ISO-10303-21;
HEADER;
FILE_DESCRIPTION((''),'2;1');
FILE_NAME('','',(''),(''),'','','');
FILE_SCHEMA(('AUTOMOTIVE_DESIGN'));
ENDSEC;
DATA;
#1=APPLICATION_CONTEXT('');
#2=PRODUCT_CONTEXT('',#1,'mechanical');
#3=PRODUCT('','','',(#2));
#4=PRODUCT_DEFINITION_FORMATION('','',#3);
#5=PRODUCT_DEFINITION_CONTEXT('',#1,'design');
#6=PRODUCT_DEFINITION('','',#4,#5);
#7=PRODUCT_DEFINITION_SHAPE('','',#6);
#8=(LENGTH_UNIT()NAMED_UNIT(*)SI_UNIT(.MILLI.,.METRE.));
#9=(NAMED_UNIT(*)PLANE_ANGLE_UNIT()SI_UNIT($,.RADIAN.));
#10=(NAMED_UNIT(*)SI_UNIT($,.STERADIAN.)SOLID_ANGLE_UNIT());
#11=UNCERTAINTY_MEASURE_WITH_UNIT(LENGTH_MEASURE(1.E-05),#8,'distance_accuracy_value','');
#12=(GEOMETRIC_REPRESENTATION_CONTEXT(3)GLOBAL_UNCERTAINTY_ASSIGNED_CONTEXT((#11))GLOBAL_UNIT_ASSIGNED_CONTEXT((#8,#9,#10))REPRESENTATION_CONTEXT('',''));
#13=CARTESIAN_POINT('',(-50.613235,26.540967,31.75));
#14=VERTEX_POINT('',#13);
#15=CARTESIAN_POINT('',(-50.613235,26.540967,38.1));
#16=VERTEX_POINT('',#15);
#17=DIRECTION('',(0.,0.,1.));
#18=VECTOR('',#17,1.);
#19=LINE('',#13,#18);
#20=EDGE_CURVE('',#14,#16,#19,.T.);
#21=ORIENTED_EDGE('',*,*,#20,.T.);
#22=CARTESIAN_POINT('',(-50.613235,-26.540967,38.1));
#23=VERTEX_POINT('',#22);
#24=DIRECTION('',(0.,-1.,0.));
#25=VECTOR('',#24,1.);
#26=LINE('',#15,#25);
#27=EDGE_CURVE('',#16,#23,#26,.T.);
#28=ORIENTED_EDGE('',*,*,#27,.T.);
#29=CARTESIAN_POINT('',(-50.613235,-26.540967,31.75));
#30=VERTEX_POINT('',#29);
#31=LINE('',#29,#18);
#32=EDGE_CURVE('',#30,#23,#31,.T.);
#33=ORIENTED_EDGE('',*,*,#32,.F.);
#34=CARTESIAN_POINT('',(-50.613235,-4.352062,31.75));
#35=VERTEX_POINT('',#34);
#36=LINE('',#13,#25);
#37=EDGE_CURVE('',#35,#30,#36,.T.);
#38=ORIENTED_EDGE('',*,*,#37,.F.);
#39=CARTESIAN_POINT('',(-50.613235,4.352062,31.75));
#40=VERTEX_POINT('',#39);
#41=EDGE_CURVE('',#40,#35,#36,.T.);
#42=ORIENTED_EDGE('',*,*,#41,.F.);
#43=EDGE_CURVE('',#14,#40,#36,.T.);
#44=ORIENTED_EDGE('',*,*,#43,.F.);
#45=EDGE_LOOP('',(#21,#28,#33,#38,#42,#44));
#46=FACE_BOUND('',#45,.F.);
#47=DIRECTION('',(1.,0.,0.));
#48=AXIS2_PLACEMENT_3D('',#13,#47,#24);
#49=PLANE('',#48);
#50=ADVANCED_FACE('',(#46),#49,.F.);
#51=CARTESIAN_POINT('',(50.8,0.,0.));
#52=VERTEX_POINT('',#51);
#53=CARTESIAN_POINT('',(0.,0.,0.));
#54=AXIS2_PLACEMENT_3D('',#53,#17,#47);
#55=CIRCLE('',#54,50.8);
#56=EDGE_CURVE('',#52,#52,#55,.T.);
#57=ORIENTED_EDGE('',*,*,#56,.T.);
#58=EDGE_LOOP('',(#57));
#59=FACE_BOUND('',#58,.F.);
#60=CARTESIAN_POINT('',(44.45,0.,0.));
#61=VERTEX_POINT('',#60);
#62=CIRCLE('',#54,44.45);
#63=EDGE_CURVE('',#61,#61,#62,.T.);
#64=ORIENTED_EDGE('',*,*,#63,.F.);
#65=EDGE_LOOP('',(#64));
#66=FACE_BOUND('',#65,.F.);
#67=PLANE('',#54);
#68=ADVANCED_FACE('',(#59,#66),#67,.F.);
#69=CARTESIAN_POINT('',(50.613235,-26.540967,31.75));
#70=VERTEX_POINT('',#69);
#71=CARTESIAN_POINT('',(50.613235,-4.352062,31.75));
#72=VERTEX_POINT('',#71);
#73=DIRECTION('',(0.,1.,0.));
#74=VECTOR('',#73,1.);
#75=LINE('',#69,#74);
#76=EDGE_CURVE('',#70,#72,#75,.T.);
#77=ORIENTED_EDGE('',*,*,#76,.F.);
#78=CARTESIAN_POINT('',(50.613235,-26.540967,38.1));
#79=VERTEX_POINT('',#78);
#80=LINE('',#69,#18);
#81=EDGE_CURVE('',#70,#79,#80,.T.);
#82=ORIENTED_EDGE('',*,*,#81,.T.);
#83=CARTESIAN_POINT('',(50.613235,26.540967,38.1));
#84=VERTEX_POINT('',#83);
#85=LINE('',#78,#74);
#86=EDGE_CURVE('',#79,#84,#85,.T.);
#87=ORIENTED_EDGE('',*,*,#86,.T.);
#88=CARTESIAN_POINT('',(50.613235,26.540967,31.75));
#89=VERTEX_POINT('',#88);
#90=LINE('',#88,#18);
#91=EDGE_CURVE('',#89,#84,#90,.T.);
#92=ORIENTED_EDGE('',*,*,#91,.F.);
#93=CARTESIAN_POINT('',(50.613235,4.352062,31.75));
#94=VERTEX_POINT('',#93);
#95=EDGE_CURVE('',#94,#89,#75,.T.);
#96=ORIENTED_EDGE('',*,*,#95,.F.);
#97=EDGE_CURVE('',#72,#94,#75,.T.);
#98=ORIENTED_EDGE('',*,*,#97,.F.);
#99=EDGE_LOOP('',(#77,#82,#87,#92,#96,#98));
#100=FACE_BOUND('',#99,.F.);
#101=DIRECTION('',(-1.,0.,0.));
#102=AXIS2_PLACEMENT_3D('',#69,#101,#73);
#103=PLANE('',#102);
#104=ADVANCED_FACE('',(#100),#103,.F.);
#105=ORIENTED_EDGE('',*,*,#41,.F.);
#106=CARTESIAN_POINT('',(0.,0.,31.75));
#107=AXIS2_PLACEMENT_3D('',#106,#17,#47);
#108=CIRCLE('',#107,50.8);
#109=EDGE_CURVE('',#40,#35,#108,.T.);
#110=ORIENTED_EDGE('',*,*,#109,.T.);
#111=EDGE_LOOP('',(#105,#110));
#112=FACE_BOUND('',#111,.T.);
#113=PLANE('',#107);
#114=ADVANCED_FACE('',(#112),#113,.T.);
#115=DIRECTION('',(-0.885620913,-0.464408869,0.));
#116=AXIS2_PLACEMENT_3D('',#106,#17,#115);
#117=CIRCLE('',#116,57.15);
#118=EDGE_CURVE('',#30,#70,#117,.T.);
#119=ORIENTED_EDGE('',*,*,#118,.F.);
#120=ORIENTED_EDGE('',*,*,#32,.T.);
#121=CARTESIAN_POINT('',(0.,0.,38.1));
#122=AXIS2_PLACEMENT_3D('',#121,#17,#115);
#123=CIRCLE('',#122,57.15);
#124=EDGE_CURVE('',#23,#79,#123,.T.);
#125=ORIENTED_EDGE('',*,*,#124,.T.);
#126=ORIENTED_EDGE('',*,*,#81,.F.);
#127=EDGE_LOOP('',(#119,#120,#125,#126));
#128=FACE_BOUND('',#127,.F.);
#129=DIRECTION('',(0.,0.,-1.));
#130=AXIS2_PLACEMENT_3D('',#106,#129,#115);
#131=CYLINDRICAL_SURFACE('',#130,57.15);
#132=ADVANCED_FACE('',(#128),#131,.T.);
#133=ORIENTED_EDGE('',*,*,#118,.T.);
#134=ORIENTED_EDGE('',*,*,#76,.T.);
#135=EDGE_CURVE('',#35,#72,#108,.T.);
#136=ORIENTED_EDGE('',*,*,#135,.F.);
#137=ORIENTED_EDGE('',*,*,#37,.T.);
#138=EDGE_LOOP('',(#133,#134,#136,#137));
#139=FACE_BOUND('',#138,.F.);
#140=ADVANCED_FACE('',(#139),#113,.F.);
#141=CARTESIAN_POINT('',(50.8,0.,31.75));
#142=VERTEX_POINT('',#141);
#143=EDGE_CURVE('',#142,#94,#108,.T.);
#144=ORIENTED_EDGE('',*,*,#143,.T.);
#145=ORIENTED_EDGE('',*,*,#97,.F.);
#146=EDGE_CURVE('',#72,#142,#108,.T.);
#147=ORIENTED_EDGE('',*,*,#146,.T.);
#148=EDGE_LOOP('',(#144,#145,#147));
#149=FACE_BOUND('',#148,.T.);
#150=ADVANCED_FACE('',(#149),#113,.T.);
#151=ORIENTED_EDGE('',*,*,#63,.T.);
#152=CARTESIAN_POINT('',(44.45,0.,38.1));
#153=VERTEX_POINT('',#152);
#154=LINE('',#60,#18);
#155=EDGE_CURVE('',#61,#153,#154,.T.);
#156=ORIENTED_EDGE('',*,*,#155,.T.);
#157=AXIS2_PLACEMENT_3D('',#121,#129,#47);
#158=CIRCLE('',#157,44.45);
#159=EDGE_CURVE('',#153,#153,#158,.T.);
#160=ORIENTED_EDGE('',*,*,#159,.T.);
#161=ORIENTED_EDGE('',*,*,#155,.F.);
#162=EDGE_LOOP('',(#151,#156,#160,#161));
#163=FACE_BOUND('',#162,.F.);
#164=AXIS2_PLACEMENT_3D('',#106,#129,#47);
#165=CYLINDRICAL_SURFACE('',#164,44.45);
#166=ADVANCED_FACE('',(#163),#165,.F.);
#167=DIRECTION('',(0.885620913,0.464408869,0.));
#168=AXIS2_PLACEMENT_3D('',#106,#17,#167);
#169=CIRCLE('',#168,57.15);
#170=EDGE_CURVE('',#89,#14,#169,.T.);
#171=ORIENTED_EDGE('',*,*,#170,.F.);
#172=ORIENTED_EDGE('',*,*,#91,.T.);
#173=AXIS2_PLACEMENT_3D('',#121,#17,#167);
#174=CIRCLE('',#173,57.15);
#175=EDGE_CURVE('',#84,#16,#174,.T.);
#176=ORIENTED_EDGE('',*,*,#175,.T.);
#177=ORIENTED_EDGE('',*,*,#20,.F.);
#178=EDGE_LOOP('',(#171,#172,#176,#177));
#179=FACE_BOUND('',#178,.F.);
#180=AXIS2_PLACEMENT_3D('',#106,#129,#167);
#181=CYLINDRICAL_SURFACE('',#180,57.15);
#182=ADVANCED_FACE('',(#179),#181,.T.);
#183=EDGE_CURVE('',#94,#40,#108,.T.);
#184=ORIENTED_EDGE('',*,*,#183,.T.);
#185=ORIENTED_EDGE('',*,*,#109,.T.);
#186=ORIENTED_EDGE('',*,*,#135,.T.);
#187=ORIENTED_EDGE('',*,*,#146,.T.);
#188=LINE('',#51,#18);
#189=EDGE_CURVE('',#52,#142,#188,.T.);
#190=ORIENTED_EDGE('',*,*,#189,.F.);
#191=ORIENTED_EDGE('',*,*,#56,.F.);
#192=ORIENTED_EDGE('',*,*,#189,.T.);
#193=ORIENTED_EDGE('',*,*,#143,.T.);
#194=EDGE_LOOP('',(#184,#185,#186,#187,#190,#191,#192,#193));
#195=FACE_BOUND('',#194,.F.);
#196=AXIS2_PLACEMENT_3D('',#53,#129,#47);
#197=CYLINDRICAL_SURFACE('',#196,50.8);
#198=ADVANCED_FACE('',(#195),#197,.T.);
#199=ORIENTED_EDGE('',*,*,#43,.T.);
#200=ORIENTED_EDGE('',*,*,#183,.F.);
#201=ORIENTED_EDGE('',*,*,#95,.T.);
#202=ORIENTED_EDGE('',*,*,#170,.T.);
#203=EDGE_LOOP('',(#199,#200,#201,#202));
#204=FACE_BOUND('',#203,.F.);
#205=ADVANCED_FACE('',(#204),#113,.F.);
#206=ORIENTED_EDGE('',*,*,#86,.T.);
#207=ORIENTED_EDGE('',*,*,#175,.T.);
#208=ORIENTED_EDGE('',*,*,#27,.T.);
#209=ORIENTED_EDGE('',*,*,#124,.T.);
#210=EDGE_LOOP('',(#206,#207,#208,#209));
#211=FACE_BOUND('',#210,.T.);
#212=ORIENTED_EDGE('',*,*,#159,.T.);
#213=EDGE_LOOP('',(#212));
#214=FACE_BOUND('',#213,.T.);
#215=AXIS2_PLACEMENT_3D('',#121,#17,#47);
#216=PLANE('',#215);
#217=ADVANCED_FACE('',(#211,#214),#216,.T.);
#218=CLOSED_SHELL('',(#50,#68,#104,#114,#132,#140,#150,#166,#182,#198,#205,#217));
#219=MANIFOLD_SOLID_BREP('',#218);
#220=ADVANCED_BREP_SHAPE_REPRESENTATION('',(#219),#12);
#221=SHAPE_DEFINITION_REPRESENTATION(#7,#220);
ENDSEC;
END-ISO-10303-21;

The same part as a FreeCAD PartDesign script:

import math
import FreeCAD as App
import Part
import Sketcher

V = App.Vector
Q = App.Units.Quantity

doc = App.newDocument("Part")
body = doc.addObject("PartDesign::Body", "Body")

# Sketch on XY plane
sketch1 = body.newObject("Sketcher::SketchObject", "Sketch")
sketch1.AttachmentSupport = (doc.getObject("XY_Plane"), [""])
sketch1.MapMode = "FlatFace"
sketch1.addGeometry([
    Part.Circle(V(0, 0, 0), V(0, 0, 1), 51),
    Part.Circle(V(0, 0, 0), V(0, 0, 1), 44),
], False)
sketch1.addConstraint([
    Sketcher.Constraint("Coincident", 0, 3, -1, 1),
    Sketcher.Constraint("Coincident", 1, 3, -1, 1),
    Sketcher.Constraint("Diameter", 0, Q("4 in")),
    Sketcher.Constraint("Diameter", 1, Q("3.5 in")),
])
pad1 = body.newObject("PartDesign::Pad", "Pad")
pad1.Profile = sketch1
pad1.Length = Q("1.25 in")

# Sketch on XY plane
sketch2 = body.newObject("Sketcher::SketchObject", "Sketch001")
sketch2.AttachmentSupport = (doc.getObject("XY_Plane"), [""])
sketch2.MapMode = "FlatFace"
sketch2.AttachmentOffset = App.Placement(V(0, 0, 1.25 * 25.4), App.Rotation())
sketch2.addGeometry([
    Part.ArcOfCircle(Part.Circle(V(0, 0, 0), V(0, 0, 1), 57), math.radians(-152), math.radians(-28)),
    Part.LineSegment(V(51, -27, 0), V(51, 27, 0)),
    Part.ArcOfCircle(Part.Circle(V(0, 0, 0), V(0, 0, 1), 57), math.radians(28), math.radians(152)),
    Part.LineSegment(V(-51, 27, 0), V(-51, -27, 0)),
], False)
sketch2.addConstraint([
    Sketcher.Constraint("Coincident", 0, 2, 1, 1),
    Sketcher.Constraint("Coincident", 1, 2, 2, 1),
    Sketcher.Constraint("Coincident", 2, 2, 3, 1),
    Sketcher.Constraint("Coincident", 3, 2, 0, 1),
    Sketcher.Constraint("Vertical", 1),
    Sketcher.Constraint("Vertical", 3),
    Sketcher.Constraint("Coincident", 0, 3, -1, 1),
    Sketcher.Constraint("Coincident", 2, 3, -1, 1),
    Sketcher.Constraint("Equal", 0, 2),
    Sketcher.Constraint("Horizontal", 1, 2, 2, 2),
    Sketcher.Constraint("Radius", 0, Q("2.25 in")),
    Sketcher.Constraint("DistanceY", 1, 1, 1, 2, Q("53.081934 mm")),
])
pad2 = body.newObject("PartDesign::Pad", "Pad001")
pad2.Profile = sketch2
pad2.Length = Q("0.25 in")

# Sketch on XY plane
sketch3 = body.newObject("Sketcher::SketchObject", "Sketch002")
sketch3.AttachmentSupport = (doc.getObject("XY_Plane"), [""])
sketch3.MapMode = "FlatFace"
sketch3.AttachmentOffset = App.Placement(V(0, 0, 1.25 * 25.4), App.Rotation())
sketch3.addGeometry(Part.Circle(V(0, 0, 0), V(0, 0, 1), 44), False)
sketch3.addConstraint([
    Sketcher.Constraint("Coincident", 0, 3, -1, 1),
    Sketcher.Constraint("Diameter", 0, Q("3.5 in")),
])
pocket1 = body.newObject("PartDesign::Pocket", "Pocket")
pocket1.Profile = sketch3
pocket1.Length = Q("1 in")
pocket1.Reversed = True

doc.recompute()
